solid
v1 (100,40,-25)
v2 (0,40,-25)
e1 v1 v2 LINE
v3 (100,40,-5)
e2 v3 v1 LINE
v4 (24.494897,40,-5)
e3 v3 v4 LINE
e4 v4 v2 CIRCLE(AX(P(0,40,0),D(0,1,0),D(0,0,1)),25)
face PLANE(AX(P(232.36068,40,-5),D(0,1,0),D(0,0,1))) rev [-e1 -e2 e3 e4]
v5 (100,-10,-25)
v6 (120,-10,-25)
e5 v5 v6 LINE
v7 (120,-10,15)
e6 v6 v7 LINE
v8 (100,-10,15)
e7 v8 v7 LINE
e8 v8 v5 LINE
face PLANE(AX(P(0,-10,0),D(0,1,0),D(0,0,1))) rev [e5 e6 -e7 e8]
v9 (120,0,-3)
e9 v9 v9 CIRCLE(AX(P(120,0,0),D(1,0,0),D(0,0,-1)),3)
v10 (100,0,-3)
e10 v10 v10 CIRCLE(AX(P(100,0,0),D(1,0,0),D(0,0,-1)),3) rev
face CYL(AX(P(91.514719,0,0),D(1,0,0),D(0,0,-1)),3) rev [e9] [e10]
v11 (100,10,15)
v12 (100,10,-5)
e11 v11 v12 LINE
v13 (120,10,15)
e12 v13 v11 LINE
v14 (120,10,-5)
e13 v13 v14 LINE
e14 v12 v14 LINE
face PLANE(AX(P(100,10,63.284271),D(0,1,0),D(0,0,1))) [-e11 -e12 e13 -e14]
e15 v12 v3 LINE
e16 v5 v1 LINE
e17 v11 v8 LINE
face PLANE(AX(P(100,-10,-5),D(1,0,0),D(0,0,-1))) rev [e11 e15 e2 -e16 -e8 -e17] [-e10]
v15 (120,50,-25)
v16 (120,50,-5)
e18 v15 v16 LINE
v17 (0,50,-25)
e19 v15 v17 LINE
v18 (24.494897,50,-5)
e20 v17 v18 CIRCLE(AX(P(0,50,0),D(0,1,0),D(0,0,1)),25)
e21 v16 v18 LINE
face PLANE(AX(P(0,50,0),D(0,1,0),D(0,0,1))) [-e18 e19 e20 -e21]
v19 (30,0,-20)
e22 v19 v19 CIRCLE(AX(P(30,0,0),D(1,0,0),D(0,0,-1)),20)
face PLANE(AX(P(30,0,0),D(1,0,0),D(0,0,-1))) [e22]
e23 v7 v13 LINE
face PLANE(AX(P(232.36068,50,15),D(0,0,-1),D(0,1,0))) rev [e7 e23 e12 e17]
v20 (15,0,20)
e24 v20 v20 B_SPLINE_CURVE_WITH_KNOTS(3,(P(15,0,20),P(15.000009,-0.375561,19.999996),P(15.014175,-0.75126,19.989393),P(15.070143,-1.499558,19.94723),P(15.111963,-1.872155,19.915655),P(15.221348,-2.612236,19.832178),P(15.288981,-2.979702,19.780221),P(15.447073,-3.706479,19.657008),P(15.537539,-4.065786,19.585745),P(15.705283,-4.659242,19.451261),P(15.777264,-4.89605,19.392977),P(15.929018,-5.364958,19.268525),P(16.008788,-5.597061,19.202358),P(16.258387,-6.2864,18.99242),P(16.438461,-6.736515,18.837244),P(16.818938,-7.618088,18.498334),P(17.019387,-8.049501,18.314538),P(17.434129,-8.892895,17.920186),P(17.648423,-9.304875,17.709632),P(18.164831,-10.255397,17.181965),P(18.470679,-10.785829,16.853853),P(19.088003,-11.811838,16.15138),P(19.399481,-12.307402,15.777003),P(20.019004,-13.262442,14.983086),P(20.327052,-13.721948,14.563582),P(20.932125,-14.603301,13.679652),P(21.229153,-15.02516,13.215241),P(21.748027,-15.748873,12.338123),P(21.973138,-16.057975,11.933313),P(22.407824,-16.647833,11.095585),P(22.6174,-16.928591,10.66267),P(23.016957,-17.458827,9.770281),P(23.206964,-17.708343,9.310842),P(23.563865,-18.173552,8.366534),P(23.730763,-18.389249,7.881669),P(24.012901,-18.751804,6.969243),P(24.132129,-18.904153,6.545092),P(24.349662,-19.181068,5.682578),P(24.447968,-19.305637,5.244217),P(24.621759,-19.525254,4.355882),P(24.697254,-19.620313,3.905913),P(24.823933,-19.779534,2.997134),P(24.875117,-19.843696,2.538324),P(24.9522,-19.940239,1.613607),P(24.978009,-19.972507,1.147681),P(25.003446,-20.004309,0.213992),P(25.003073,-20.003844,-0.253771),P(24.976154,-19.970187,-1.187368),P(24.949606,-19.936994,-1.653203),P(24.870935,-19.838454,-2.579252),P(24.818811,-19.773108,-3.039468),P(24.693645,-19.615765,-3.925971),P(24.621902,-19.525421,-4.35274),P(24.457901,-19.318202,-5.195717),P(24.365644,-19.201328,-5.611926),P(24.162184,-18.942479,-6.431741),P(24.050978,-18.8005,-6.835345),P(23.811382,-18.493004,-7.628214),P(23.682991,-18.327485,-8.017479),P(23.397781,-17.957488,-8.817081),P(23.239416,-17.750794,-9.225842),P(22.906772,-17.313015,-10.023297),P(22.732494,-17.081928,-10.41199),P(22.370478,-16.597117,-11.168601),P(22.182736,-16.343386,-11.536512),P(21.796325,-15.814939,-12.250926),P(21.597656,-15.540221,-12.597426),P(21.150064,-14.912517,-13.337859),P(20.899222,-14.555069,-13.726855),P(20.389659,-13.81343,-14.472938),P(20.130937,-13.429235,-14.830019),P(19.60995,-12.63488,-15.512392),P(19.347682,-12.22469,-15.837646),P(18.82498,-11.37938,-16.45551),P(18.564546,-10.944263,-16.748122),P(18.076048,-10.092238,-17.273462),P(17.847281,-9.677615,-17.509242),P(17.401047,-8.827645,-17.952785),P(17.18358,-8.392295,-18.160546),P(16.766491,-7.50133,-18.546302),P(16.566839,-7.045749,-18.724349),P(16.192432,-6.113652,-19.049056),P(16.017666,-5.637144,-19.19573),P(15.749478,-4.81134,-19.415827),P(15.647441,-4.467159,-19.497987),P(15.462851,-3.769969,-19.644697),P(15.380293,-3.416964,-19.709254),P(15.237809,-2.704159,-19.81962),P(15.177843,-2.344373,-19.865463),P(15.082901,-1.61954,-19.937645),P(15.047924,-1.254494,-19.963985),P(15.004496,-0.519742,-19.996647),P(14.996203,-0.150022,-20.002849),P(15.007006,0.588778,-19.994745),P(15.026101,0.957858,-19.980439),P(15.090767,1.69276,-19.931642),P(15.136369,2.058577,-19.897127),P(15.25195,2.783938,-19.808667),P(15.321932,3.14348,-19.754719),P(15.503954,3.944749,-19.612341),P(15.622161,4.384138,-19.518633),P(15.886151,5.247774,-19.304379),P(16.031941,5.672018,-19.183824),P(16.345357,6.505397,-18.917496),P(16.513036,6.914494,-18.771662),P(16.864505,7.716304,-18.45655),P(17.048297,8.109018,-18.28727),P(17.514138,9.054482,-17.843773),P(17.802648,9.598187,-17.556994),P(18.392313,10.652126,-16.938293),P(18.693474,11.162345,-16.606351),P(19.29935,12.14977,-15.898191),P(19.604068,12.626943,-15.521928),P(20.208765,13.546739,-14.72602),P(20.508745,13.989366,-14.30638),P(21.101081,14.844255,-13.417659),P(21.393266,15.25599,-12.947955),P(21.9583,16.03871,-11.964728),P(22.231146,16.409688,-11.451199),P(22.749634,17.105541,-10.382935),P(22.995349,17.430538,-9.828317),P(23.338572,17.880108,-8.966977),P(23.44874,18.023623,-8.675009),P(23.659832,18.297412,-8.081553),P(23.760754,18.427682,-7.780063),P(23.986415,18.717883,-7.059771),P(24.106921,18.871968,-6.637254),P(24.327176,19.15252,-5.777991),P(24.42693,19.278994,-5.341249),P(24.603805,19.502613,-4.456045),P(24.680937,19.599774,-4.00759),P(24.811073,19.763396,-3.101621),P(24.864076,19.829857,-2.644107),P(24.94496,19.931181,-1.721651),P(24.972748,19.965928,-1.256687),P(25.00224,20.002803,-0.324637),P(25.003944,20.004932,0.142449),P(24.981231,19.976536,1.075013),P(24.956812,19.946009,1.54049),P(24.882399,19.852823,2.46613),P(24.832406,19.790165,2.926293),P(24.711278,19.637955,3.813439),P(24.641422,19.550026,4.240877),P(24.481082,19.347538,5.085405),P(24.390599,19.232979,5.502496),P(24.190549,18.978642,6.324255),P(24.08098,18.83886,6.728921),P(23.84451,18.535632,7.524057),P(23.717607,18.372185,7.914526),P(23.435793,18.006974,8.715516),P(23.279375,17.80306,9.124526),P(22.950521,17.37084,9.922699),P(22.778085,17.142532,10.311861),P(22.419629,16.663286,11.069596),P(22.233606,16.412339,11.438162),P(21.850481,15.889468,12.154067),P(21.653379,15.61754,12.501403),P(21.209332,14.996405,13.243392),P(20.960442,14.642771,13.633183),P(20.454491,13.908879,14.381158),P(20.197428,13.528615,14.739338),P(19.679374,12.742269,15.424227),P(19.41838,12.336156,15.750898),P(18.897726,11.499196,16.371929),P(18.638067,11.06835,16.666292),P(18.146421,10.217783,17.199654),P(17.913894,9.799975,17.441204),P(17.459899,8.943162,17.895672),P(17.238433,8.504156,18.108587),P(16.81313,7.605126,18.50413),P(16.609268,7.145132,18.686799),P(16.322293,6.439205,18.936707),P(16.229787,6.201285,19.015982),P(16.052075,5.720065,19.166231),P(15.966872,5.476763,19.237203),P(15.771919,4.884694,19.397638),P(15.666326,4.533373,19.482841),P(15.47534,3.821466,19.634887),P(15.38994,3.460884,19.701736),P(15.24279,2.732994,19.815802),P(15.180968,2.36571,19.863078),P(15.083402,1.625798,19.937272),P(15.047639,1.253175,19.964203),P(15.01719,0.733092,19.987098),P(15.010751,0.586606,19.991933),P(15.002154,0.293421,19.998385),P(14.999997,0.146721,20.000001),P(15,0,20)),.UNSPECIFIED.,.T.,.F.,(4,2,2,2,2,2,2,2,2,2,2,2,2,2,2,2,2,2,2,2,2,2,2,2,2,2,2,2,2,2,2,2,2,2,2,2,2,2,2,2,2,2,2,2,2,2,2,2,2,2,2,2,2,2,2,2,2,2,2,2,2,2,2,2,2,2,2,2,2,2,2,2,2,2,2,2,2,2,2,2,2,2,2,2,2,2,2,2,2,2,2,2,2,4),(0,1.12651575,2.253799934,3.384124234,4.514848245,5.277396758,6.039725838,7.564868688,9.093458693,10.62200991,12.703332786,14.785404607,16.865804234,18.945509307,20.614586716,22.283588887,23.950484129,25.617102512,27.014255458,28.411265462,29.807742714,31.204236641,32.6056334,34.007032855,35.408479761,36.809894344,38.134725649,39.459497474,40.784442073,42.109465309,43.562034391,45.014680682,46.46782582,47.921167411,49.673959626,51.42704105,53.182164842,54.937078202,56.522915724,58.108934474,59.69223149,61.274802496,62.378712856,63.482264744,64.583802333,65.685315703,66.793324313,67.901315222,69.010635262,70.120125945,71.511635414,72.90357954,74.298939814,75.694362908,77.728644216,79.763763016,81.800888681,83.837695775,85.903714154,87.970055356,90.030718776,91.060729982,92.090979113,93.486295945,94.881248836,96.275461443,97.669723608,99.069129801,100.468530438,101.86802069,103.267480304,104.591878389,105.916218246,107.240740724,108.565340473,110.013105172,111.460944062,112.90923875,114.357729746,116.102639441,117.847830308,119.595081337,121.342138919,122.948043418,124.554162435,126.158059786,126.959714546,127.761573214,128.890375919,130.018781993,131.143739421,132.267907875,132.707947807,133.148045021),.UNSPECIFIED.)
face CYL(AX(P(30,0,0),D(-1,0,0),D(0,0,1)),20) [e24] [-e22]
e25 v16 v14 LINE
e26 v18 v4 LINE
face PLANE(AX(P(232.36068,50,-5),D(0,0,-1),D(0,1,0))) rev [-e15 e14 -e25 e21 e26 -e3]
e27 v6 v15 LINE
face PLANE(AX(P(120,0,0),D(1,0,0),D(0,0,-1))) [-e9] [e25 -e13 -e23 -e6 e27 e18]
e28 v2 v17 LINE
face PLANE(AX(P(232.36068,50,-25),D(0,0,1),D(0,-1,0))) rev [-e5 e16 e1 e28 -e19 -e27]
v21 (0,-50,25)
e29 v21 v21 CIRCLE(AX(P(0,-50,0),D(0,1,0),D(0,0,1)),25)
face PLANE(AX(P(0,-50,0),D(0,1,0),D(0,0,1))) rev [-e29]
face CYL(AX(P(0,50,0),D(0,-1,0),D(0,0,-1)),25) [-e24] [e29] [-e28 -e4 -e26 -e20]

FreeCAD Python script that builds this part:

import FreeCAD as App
import Part
import Sketcher

V = App.Vector


def add_polygon(sketch, points):
    """Adds a closed chain of lines whose ends are joined by coincident constraints."""
    first, n = sketch.GeometryCount, len(points)
    for a, b in zip(points, points[1:] + points[:1]):
        sketch.addGeometry(Part.LineSegment(App.Vector(*a, 0), App.Vector(*b, 0)), False)
    for i in range(n):
        sketch.addConstraint(Sketcher.Constraint("Coincident", first + i, 2, first + (i + 1) % n, 1))

doc = App.newDocument("Part")
body = doc.addObject("PartDesign::Body", "Body")

# Sketch on XZ plane
sketch1 = doc.addObject("Sketcher::SketchObject", "Sketch")
body.addObject(sketch1)
sketch1.AttachmentSupport = (doc.XZ_Plane, [""])
sketch1.MapMode = "FlatFace"
sketch1.addGeometry(Part.Circle(V(0, 0, 0), V(0, 0, 1), 25), False)
sketch1.addConstraint([
    Sketcher.Constraint("Coincident", 0, 3, -1, 1),
    Sketcher.Constraint("Diameter", 0, 50.0),
])
pad1 = doc.addObject("PartDesign::Pad", "Pad")
body.addObject(pad1)
pad1.Profile = sketch1
pad1.Length = 100
pad1.Midplane = True

# Sketch on YZ plane
sketch2 = doc.addObject("Sketcher::SketchObject", "Sketch001")
body.addObject(sketch2)
sketch2.AttachmentSupport = (doc.YZ_Plane, [""])
sketch2.MapMode = "FlatFace"
sketch2.addGeometry(Part.Circle(V(0, 0, 0), V(0, 0, 1), 20), False)
sketch2.addConstraint([
    Sketcher.Constraint("Coincident", 0, 3, -1, 1),
    Sketcher.Constraint("Diameter", 0, 40.0),
])
pad2 = doc.addObject("PartDesign::Pad", "Pad001")
body.addObject(pad2)
pad2.Profile = sketch2
pad2.Length = 30

# Sketch on YZ plane
sketch3 = doc.addObject("Sketcher::SketchObject", "Sketch002")
body.addObject(sketch3)
sketch3.AttachmentSupport = (doc.YZ_Plane, [""])
sketch3.MapMode = "FlatFace"
add_polygon(sketch3, [(50, -5), (40, -5), (40, -25), (50, -25)])  # lines 0-3
sketch3.addConstraint([
    Sketcher.Constraint("Horizontal", 0),
    Sketcher.Constraint("Vertical", 1),
    Sketcher.Constraint("Horizontal", 2),
    Sketcher.Constraint("Vertical", 3),
    Sketcher.Constraint("DistanceX", 0, 2, 0, 1, 10.0),
    Sketcher.Constraint("DistanceY", 1, 2, 1, 1, 20.0),
    Sketcher.Constraint("DistanceX", -1, 1, 0, 2, 40.0),
    Sketcher.Constraint("DistanceY", 0, 2, -1, 1, 5.0),
])
pad3 = doc.addObject("PartDesign::Pad", "Pad002")
body.addObject(pad3)
pad3.Profile = sketch3
pad3.Length = 120

# Sketch on XZ plane
sketch4 = doc.addObject("Sketcher::SketchObject", "Sketch003")
body.addObject(sketch4)
sketch4.AttachmentSupport = (doc.XZ_Plane, [""])
sketch4.MapMode = "FlatFace"
sketch4.AttachmentOffset = App.Placement(V(0, 0, -40), App.Rotation())
add_polygon(sketch4, [(100, -5), (100, -25), (120, -25), (120, -5)])  # lines 0-3
sketch4.addConstraint([
    Sketcher.Constraint("Vertical", 0),
    Sketcher.Constraint("Horizontal", 1),
    Sketcher.Constraint("Vertical", 2),
    Sketcher.Constraint("Horizontal", 3),
    Sketcher.Constraint("Equal", 3, 0),
    Sketcher.Constraint("DistanceX", 1, 1, 1, 2, 20.0),
    Sketcher.Constraint("DistanceX", -1, 1, 0, 2, 100.0),
    Sketcher.Constraint("DistanceY", 0, 2, -1, 1, 25.0),
])
pad4 = doc.addObject("PartDesign::Pad", "Pad003")
body.addObject(pad4)
pad4.Profile = sketch4
pad4.Length = 50

# Sketch on XY plane
sketch5 = doc.addObject("Sketcher::SketchObject", "Sketch004")
body.addObject(sketch5)
sketch5.AttachmentSupport = (doc.XY_Plane, [""])
sketch5.MapMode = "FlatFace"
sketch5.AttachmentOffset = App.Placement(V(0, 0, -25), App.Rotation())
add_polygon(sketch5, [(120, 10), (120, -10), (100, -10), (100, 10)])  # lines 0-3
sketch5.addConstraint([
    Sketcher.Constraint("Vertical", 0),
    Sketcher.Constraint("Horizontal", 1),
    Sketcher.Constraint("Vertical", 2),
    Sketcher.Constraint("Horizontal", 3),
    Sketcher.Constraint("Equal", 3, 0),
    Sketcher.Constraint("DistanceX", 1, 2, 1, 1, 20.0),
    Sketcher.Constraint("DistanceX", -1, 1, 0, 2, 120.0),
    Sketcher.Constraint("DistanceY", 0, 2, -1, 1, 10.0),
])
pad5 = doc.addObject("PartDesign::Pad", "Pad004")
body.addObject(pad5)
pad5.Profile = sketch5
pad5.Length = 40

# Sketch on YZ plane
sketch6 = doc.addObject("Sketcher::SketchObject", "Sketch005")
body.addObject(sketch6)
sketch6.AttachmentSupport = (doc.YZ_Plane, [""])
sketch6.MapMode = "FlatFace"
sketch6.AttachmentOffset = App.Placement(V(0, 0, 120), App.Rotation())
sketch6.addGeometry(Part.Circle(V(0, 0, 0), V(0, 0, 1), 3), False)
sketch6.addConstraint([
    Sketcher.Constraint("Coincident", 0, 3, -1, 1),
    Sketcher.Constraint("Diameter", 0, 6.0),
])
pocket1 = doc.addObject("PartDesign::Pocket", "Pocket")
body.addObject(pocket1)
pocket1.Profile = sketch6
pocket1.Length = 20

doc.recompute()
